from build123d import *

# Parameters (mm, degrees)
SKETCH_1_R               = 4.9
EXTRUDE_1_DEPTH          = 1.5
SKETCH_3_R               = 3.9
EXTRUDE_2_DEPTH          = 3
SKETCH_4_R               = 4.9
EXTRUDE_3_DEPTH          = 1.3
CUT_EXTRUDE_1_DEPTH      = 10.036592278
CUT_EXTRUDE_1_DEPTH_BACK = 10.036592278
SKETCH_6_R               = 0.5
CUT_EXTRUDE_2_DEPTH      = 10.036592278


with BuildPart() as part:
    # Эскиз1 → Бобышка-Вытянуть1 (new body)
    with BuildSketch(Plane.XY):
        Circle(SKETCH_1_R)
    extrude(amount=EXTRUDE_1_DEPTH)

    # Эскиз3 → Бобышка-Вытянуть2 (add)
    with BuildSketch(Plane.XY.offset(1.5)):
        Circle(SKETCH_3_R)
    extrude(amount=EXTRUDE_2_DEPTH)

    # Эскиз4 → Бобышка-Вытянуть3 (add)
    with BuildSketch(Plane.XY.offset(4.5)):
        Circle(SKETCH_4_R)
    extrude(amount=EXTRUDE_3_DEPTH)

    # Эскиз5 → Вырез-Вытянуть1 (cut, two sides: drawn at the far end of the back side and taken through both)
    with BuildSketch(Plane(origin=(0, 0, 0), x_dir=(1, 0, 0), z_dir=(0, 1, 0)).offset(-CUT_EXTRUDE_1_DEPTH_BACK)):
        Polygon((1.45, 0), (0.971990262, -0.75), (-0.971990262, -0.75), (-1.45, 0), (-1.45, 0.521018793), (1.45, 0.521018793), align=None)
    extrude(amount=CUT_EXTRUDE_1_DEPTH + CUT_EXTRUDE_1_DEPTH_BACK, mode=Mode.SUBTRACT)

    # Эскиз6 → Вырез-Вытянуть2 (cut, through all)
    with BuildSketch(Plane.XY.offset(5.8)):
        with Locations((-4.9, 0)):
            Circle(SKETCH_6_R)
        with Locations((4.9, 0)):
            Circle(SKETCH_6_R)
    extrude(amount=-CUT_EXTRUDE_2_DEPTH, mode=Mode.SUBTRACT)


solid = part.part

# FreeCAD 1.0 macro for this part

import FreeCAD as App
import Part
import Sketcher

doc = App.newDocument("Part")
body = doc.addObject("PartDesign::Body", "Body")

sketch1 = body.newObject("Sketcher::SketchObject", "Sketch")
sketch1.AttachmentSupport = (doc.getObject("XY_Plane"), [""])
sketch1.MapMode = "FlatFace"
sketch1.addGeometry(Part.Circle(App.Vector(0, 0, 0), App.Vector(0, 0, 1), 4.9), False)
sketch1.addConstraint([
    Sketcher.Constraint("Coincident", 0, 3, -1, 1),
    Sketcher.Constraint("Diameter", 0, 9.8),
])
pad1 = body.newObject("PartDesign::Pad", "Pad")
pad1.Profile = sketch1
pad1.Length = 1.5

sketch2 = body.newObject("Sketcher::SketchObject", "Sketch001")
sketch2.AttachmentSupport = (doc.getObject("XY_Plane"), [""])
sketch2.MapMode = "FlatFace"
sketch2.AttachmentOffset = App.Placement(App.Vector(0, 0, 1.5), App.Rotation())
sketch2.addGeometry(Part.Circle(App.Vector(0, 0, 0), App.Vector(0, 0, 1), 3.9), False)
sketch2.addConstraint([
    Sketcher.Constraint("Coincident", 0, 3, -1, 1),
    Sketcher.Constraint("Diameter", 0, 7.8),
])
pad2 = body.newObject("PartDesign::Pad", "Pad001")
pad2.Profile = sketch2
pad2.Length = 3

sketch3 = body.newObject("Sketcher::SketchObject", "Sketch002")
sketch3.AttachmentSupport = (doc.getObject("XY_Plane"), [""])
sketch3.MapMode = "FlatFace"
sketch3.AttachmentOffset = App.Placement(App.Vector(0, 0, 4.5), App.Rotation())
sketch3.addGeometry(Part.Circle(App.Vector(0, 0, 0), App.Vector(0, 0, 1), 4.9), False)
sketch3.addConstraint([
    Sketcher.Constraint("Coincident", 0, 3, -1, 1),
    Sketcher.Constraint("Diameter", 0, 9.8),
])
pad3 = body.newObject("PartDesign::Pad", "Pad002")
pad3.Profile = sketch3
pad3.Length = 1.3

sketch4 = body.newObject("Sketcher::SketchObject", "Sketch003")
sketch4.AttachmentSupport = (doc.getObject("XZ_Plane"), [""])
sketch4.MapMode = "FlatFace"
sketch4.addGeometry([
    Part.LineSegment(App.Vector(1, 0.8, 0), App.Vector(1.4, 0, 0)),
    Part.LineSegment(App.Vector(1.4, 0, 0), App.Vector(1.4, -0.5, 0)),
    Part.LineSegment(App.Vector(1.4, -0.5, 0), App.Vector(-1.4, -0.5, 0)),
    Part.LineSegment(App.Vector(-1.4, -0.5, 0), App.Vector(-1.4, 0, 0)),
    Part.LineSegment(App.Vector(-1.4, 0, 0), App.Vector(-1, 0.8, 0)),
    Part.LineSegment(App.Vector(-1, 0.8, 0), App.Vector(1, 0.8, 0)),
], False)
sketch4.addConstraint([
    Sketcher.Constraint("Coincident", 0, 2, 1, 1),
    Sketcher.Constraint("Coincident", 1, 2, 2, 1),
    Sketcher.Constraint("Coincident", 2, 2, 3, 1),
    Sketcher.Constraint("Coincident", 3, 2, 4, 1),
    Sketcher.Constraint("Coincident", 4, 2, 5, 1),
    Sketcher.Constraint("Coincident", 5, 2, 0, 1),
    Sketcher.Constraint("Vertical", 1),
    Sketcher.Constraint("Horizontal", 2),
    Sketcher.Constraint("Vertical", 3),
    Sketcher.Constraint("Horizontal", 5),
    Sketcher.Constraint("Symmetric", 0, 2, 3, 2, -1, 1),
    Sketcher.Constraint("PointOnObject", 0, 2, -1),
    Sketcher.Constraint("Equal", 0, 4),
    Sketcher.Constraint("DistanceX", 2, 2, 2, 1, 2.9),
    Sketcher.Constraint("DistanceY", -1, 1, 4, 2, 0.75),
    Sketcher.Constraint("DistanceX", 5, 1, 5, 2, 1.943981),
    Sketcher.Constraint("DistanceY", 1, 2, 1, 1, 0.521019),
])
pocket1 = body.newObject("PartDesign::Pocket", "Pocket")
pocket1.Profile = sketch4
pocket1.Type = "ThroughAll"
pocket1.Midplane = True

sketch5 = body.newObject("Sketcher::SketchObject", "Sketch004")
sketch5.AttachmentSupport = (doc.getObject("XY_Plane"), [""])
sketch5.MapMode = "FlatFace"
sketch5.AttachmentOffset = App.Placement(App.Vector(0, 0, 5.8), App.Rotation())
sketch5.addGeometry([
    Part.Circle(App.Vector(-4.9, 0, 0), App.Vector(0, 0, 1), 0.5),
    Part.Circle(App.Vector(4.9, 0, 0), App.Vector(0, 0, 1), 0.5),
], False)
sketch5.addConstraint([
    Sketcher.Constraint("Equal", 0, 1),
    Sketcher.Constraint("Symmetric", 0, 3, 1, 3, -1, 1),
    Sketcher.Constraint("PointOnObject", 0, 3, -1),
    Sketcher.Constraint("Diameter", 0, 1.0),
    Sketcher.Constraint("DistanceX", 0, 3, -1, 1, 4.9),
])
pocket2 = body.newObject("PartDesign::Pocket", "Pocket001")
pocket2.Profile = sketch5
pocket2.Type = "ThroughAll"

doc.recompute()
